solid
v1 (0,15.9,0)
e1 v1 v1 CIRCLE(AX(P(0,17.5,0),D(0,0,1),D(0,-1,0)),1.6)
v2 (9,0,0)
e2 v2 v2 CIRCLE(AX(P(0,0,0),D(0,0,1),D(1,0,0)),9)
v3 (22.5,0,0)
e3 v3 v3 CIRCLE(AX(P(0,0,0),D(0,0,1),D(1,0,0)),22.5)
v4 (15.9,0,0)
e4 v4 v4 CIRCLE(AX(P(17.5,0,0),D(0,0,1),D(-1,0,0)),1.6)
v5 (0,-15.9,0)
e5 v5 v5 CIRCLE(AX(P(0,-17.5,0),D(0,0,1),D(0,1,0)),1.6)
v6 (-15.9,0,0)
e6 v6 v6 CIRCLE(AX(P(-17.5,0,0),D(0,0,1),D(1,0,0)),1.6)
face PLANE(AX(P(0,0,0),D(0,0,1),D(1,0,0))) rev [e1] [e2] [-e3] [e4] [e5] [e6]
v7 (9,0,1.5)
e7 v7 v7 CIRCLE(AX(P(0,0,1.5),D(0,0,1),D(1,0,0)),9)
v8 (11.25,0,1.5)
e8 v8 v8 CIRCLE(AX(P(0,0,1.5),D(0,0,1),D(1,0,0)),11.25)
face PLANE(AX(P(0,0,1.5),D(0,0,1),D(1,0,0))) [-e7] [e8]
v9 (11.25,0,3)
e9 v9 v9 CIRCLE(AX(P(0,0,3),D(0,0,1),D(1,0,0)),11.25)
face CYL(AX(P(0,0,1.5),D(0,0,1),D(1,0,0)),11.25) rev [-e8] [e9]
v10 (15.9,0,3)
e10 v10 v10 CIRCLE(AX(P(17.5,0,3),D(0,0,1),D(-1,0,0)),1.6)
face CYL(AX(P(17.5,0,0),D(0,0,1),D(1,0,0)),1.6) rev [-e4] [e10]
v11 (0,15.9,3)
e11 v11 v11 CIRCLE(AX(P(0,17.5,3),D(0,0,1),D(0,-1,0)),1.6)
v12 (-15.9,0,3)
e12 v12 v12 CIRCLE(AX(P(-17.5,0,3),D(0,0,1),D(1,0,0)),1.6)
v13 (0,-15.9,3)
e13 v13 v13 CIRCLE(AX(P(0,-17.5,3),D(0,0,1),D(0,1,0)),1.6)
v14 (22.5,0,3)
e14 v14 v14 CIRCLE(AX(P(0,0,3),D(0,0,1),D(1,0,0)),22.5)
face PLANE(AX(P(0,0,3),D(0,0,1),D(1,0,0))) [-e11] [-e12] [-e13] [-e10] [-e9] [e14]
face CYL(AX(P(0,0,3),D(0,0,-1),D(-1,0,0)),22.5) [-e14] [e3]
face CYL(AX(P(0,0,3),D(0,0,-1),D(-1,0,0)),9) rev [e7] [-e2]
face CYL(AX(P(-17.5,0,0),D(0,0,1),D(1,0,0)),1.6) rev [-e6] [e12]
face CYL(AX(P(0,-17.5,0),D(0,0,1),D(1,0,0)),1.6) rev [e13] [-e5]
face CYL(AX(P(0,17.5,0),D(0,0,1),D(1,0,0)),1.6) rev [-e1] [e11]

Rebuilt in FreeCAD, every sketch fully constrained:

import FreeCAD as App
import Part
import Sketcher
Q = App.Units.Quantity

doc = App.newDocument("Part")
params = doc.addObject("Spreadsheet::Sheet", "Params")
for row, (alias, value) in enumerate([
    ("sketch1_diameter", "45 mm"),
    ("sketch1_diameter2", "18 mm"),
    ("pad1_length", "3 mm"),
    ("sketch2_diameter", "3.2 mm"),
    ("sketch3_diameter", "18 mm"),
    ("sketch3_diameter2", "22.5 mm"),
    ("pocket2_length", "1.5 mm"),
], start=1):
    params.set(f"A{row}", alias)
    params.set(f"B{row}", "=" + value)
    params.setAlias(f"B{row}", alias)

body = doc.addObject("PartDesign::Body", "Body")

sketch1 = doc.addObject("Sketcher::SketchObject", "Sketch")
body.addObject(sketch1)
sketch1.AttachmentSupport = (doc.XY_Plane, [""])
sketch1.MapMode = "FlatFace"
sketch1.addGeometry([
    Part.Circle(App.Vector(0, 0, 0), App.Vector(0, 0, 1), 22),
    Part.Circle(App.Vector(0, 0, 0), App.Vector(0, 0, 1), 9),
], False)
sketch1.addConstraint([
    Sketcher.Constraint("Coincident", 0, 3, -1, 1),
    Sketcher.Constraint("Coincident", 1, 3, -1, 1),
    Sketcher.Constraint("Diameter", 0, Q("45 mm")),
    Sketcher.Constraint("Diameter", 1, Q("18 mm")),
])
sketch1.setExpression("Constraints[2]", "Params.sketch1_diameter")
sketch1.setExpression("Constraints[3]", "Params.sketch1_diameter2")
pad1 = doc.addObject("PartDesign::Pad", "Pad")
body.addObject(pad1)
pad1.Profile = sketch1
pad1.setExpression("Length", "Params.pad1_length")

sketch2 = doc.addObject("Sketcher::SketchObject", "Sketch001")
body.addObject(sketch2)
sketch2.AttachmentSupport = (doc.XY_Plane, [""])
sketch2.MapMode = "FlatFace"
sketch2.AttachmentOffset = App.Placement(App.Vector(0, 0, 3), App.Rotation())
sketch2.addGeometry(Part.Circle(App.Vector(-17.5, 0, 0), App.Vector(0, 0, 1), 1.6), False)
sketch2.addConstraint([
    Sketcher.Constraint("PointOnObject", 0, 3, -1),
    Sketcher.Constraint("Diameter", 0, Q("3.2 mm")),
    Sketcher.Constraint("DistanceX", 0, 3, -1, 1, Q("17.5 mm")),
])
sketch2.setExpression("Constraints[1]", "Params.sketch2_diameter")
pocket1 = doc.addObject("PartDesign::Pocket", "Pocket")
body.addObject(pocket1)
pocket1.Profile = sketch2
pocket1.Type = "ThroughAll"
doc.recompute()

polarpattern = doc.addObject("PartDesign::PolarPattern", "PolarPattern")
body.addObject(polarpattern)
polarpattern.Originals = [pocket1]
polarpattern.Axis = (doc.Z_Axis, [""])
polarpattern.Angle = 360
polarpattern.Occurrences = 4
body.Tip = polarpattern

sketch3 = doc.addObject("Sketcher::SketchObject", "Sketch002")
body.addObject(sketch3)
sketch3.AttachmentSupport = (doc.XY_Plane, [""])
sketch3.MapMode = "FlatFace"
sketch3.AttachmentOffset = App.Placement(App.Vector(0, 0, 3), App.Rotation())
sketch3.addGeometry([
    Part.Circle(App.Vector(0, 0, 0), App.Vector(0, 0, 1), 11),
    Part.Circle(App.Vector(0, 0, 0), App.Vector(0, 0, 1), 9),
], False)
sketch3.addConstraint([
    Sketcher.Constraint("Coincident", 0, 3, -1, 1),
    Sketcher.Constraint("Coincident", 1, 3, -1, 1),
    Sketcher.Constraint("Diameter", 1, Q("18 mm")),
    Sketcher.Constraint("Diameter", 0, Q("22.5 mm")),
])
sketch3.setExpression("Constraints[2]", "Params.sketch3_diameter")
sketch3.setExpression("Constraints[3]", "Params.sketch3_diameter2")
pocket2 = doc.addObject("PartDesign::Pocket", "Pocket001")
body.addObject(pocket2)
pocket2.Profile = sketch3
pocket2.setExpression("Length", "Params.pocket2_length")

doc.recompute()
